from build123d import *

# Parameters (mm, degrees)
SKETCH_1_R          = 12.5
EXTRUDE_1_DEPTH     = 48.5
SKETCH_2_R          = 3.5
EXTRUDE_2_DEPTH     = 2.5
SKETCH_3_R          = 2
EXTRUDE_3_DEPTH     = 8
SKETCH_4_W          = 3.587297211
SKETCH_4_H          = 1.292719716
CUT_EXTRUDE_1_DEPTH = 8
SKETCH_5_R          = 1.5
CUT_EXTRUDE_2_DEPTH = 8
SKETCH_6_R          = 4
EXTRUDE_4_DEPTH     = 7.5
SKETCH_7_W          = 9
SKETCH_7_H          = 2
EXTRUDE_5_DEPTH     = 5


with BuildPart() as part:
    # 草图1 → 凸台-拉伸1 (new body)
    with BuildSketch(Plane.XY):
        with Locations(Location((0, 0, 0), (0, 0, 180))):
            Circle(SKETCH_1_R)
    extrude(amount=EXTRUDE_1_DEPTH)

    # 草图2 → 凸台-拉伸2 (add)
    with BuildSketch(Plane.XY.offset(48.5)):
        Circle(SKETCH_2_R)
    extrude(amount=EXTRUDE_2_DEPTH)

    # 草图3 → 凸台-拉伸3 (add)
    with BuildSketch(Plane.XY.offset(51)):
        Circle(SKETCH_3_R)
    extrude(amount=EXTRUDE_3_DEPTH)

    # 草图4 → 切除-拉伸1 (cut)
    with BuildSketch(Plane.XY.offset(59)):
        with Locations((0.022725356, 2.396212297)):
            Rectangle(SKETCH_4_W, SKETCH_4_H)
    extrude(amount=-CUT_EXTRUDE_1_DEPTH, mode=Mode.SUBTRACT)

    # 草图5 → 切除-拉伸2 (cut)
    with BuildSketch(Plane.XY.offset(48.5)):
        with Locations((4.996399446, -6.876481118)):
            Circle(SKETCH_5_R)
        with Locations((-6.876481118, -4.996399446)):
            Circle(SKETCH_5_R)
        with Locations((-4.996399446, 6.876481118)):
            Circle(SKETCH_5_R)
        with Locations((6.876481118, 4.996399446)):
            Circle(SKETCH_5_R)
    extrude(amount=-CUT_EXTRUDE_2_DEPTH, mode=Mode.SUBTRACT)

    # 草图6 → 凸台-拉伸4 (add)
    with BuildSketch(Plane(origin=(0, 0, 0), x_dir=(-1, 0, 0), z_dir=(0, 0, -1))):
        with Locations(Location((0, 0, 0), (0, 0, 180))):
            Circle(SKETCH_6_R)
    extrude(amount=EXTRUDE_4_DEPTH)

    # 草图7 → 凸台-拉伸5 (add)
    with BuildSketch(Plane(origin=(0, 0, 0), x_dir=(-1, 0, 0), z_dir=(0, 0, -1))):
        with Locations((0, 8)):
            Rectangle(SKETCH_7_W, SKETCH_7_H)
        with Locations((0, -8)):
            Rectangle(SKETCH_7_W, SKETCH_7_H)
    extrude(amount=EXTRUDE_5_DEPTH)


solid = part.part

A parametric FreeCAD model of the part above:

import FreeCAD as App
import Part
import Sketcher

V = App.Vector


def add_polygon(sketch, points):
    """Adds a closed chain of lines whose ends are joined by coincident constraints."""
    first, n = sketch.GeometryCount, len(points)
    for a, b in zip(points, points[1:] + points[:1]):
        sketch.addGeometry(Part.LineSegment(App.Vector(*a, 0), App.Vector(*b, 0)), False)
    for i in range(n):
        sketch.addConstraint(Sketcher.Constraint("Coincident", first + i, 2, first + (i + 1) % n, 1))

doc = App.newDocument("Part")
body = doc.addObject("PartDesign::Body", "Body")

# Sketch on XY plane
sketch1 = body.newObject("Sketcher::SketchObject", "Sketch")
sketch1.AttachmentSupport = (doc.getObject("XY_Plane"), [""])
sketch1.MapMode = "FlatFace"
sketch1.addGeometry(Part.Circle(V(0, 0, 0), V(0, 0, 1), 12), False)
sketch1.addConstraint(Sketcher.Constraint("Coincident", 0, 3, -1, 1))
sketch1.addConstraint(Sketcher.Constraint("Diameter", 0, 25.0))
pad1 = body.newObject("PartDesign::Pad", "Pad")
pad1.Profile = sketch1
pad1.Length = 48.5

# Sketch on XY plane
sketch2 = body.newObject("Sketcher::SketchObject", "Sketch001")
sketch2.AttachmentSupport = (doc.getObject("XY_Plane"), [""])
sketch2.MapMode = "FlatFace"
sketch2.AttachmentOffset = App.Placement(V(0, 0, 48.5), App.Rotation())
sketch2.addGeometry(Part.Circle(V(0, 0, 0), V(0, 0, 1), 3.5), False)
sketch2.addConstraint(Sketcher.Constraint("Coincident", 0, 3, -1, 1))
sketch2.addConstraint(Sketcher.Constraint("Diameter", 0, 7.0))
pad2 = body.newObject("PartDesign::Pad", "Pad001")
pad2.Profile = sketch2
pad2.Length = 2.5

# Sketch on XY plane
sketch3 = body.newObject("Sketcher::SketchObject", "Sketch002")
sketch3.AttachmentSupport = (doc.getObject("XY_Plane"), [""])
sketch3.MapMode = "FlatFace"
sketch3.AttachmentOffset = App.Placement(V(0, 0, 51), App.Rotation())
sketch3.addGeometry(Part.Circle(V(0, 0, 0), V(0, 0, 1), 2), False)
sketch3.addConstraint(Sketcher.Constraint("Coincident", 0, 3, -1, 1))
sketch3.addConstraint(Sketcher.Constraint("Diameter", 0, 4.0))
pad3 = body.newObject("PartDesign::Pad", "Pad002")
pad3.Profile = sketch3
pad3.Length = 8

# Sketch on XY plane
sketch4 = body.newObject("Sketcher::SketchObject", "Sketch003")
sketch4.AttachmentSupport = (doc.getObject("XY_Plane"), [""])
sketch4.MapMode = "FlatFace"
sketch4.AttachmentOffset = App.Placement(V(0, 0, 59), App.Rotation())
add_polygon(sketch4, [(-1.8, 3), (-1.8, 1.7), (1.8, 1.7), (1.8, 3)])  # lines 0-3
sketch4.addConstraint(Sketcher.Constraint("Vertical", 0))
sketch4.addConstraint(Sketcher.Constraint("Horizontal", 1))
sketch4.addConstraint(Sketcher.Constraint("Vertical", 2))
sketch4.addConstraint(Sketcher.Constraint("Horizontal", 3))
sketch4.addConstraint(Sketcher.Constraint("DistanceY", 0, 2, 0, 1, 1.29272))
sketch4.addConstraint(Sketcher.Constraint("DistanceX", 1, 1, 1, 2, 3.587297))
sketch4.addConstraint(Sketcher.Constraint("DistanceX", 0, 2, -1, 1, 1.770923))
sketch4.addConstraint(Sketcher.Constraint("DistanceY", -1, 1, 0, 2, 1.749852))
pocket1 = body.newObject("PartDesign::Pocket", "Pocket")
pocket1.Profile = sketch4
pocket1.Length = 8

# Sketch on XY plane
sketch5 = body.newObject("Sketcher::SketchObject", "Sketch004")
sketch5.AttachmentSupport = (doc.getObject("XY_Plane"), [""])
sketch5.MapMode = "FlatFace"
sketch5.AttachmentOffset = App.Placement(V(0, 0, 48.5), App.Rotation())
sketch5.addGeometry(Part.Circle(V(5, -6.9, 0), V(0, 0, 1), 1.5), False)
sketch5.addGeometry(Part.Circle(V(-6.9, -5, 0), V(0, 0, 1), 1.5), False)
sketch5.addGeometry(Part.Circle(V(-5, 6.9, 0), V(0, 0, 1), 1.5), False)
sketch5.addGeometry(Part.Circle(V(6.9, 5, 0), V(0, 0, 1), 1.5), False)
sketch5.addConstraint(Sketcher.Constraint("Equal", 0, 1))
sketch5.addConstraint(Sketcher.Constraint("Equal", 1, 2))
sketch5.addConstraint(Sketcher.Constraint("Equal", 2, 3))
sketch5.addConstraint(Sketcher.Constraint("Symmetric", 0, 3, 2, 3, -1, 1))
sketch5.addConstraint(Sketcher.Constraint("Symmetric", 1, 3, 3, 3, -1, 1))
sketch5.addConstraint(Sketcher.Constraint("Diameter", 0, 3.0))
sketch5.addConstraint(Sketcher.Constraint("DistanceX", -1, 1, 0, 3, 4.996399))
sketch5.addConstraint(Sketcher.Constraint("DistanceY", 1, 3, -1, 1, 4.996399))
sketch5.addConstraint(Sketcher.Constraint("DistanceY", 0, 3, -1, 1, 6.876481))
sketch5.addConstraint(Sketcher.Constraint("DistanceX", 1, 3, -1, 1, 6.876481))
pocket2 = body.newObject("PartDesign::Pocket", "Pocket001")
pocket2.Profile = sketch5
pocket2.Length = 8

# Sketch on XY plane
sketch6 = body.newObject("Sketcher::SketchObject", "Sketch005")
sketch6.AttachmentSupport = (doc.getObject("XY_Plane"), [""])
sketch6.MapMode = "FlatFace"
sketch6.addGeometry(Part.Circle(V(0, 0, 0), V(0, 0, 1), 4), False)
sketch6.addConstraint(Sketcher.Constraint("Coincident", 0, 3, -1, 1))
sketch6.addConstraint(Sketcher.Constraint("Diameter", 0, 8.0))
pad4 = body.newObject("PartDesign::Pad", "Pad003")
pad4.Profile = sketch6
pad4.Length = 7.5
pad4.Reversed = True

# Sketch on XY plane
sketch7 = body.newObject("Sketcher::SketchObject", "Sketch006")
sketch7.AttachmentSupport = (doc.getObject("XY_Plane"), [""])
sketch7.MapMode = "FlatFace"
add_polygon(sketch7, [(4.5, 9), (4.5, 7), (-4.5, 7), (-4.5, 9)])  # lines 0-3
add_polygon(sketch7, [(4.5, -7), (4.5, -9), (-4.5, -9), (-4.5, -7)])  # lines 4-7
sketch7.addConstraint(Sketcher.Constraint("Vertical", 0))
sketch7.addConstraint(Sketcher.Constraint("Horizontal", 1))
sketch7.addConstraint(Sketcher.Constraint("Vertical", 2))
sketch7.addConstraint(Sketcher.Constraint("Horizontal", 3))
sketch7.addConstraint(Sketcher.Constraint("Vertical", 4))
sketch7.addConstraint(Sketcher.Constraint("Horizontal", 5))
sketch7.addConstraint(Sketcher.Constraint("Vertical", 6))
sketch7.addConstraint(Sketcher.Constraint("Horizontal", 7))
sketch7.addConstraint(Sketcher.Constraint("Symmetric", 2, 2, 4, 2, -1, 1))
sketch7.addConstraint(Sketcher.Constraint("Symmetric", 0, 2, 6, 2, -1, 1))
sketch7.addConstraint(Sketcher.Constraint("Vertical", 3, 2, 4, 2))
sketch7.addConstraint(Sketcher.Constraint("DistanceX", 1, 2, 1, 1, 9.0))
sketch7.addConstraint(Sketcher.Constraint("DistanceY", 0, 2, 0, 1, 2.0))
sketch7.addConstraint(Sketcher.Constraint("DistanceY", -1, 1, 0, 2, 7.0))
pad5 = body.newObject("PartDesign::Pad", "Pad004")
pad5.Profile = sketch7
pad5.Length = 5
pad5.Reversed = True

doc.recompute()
